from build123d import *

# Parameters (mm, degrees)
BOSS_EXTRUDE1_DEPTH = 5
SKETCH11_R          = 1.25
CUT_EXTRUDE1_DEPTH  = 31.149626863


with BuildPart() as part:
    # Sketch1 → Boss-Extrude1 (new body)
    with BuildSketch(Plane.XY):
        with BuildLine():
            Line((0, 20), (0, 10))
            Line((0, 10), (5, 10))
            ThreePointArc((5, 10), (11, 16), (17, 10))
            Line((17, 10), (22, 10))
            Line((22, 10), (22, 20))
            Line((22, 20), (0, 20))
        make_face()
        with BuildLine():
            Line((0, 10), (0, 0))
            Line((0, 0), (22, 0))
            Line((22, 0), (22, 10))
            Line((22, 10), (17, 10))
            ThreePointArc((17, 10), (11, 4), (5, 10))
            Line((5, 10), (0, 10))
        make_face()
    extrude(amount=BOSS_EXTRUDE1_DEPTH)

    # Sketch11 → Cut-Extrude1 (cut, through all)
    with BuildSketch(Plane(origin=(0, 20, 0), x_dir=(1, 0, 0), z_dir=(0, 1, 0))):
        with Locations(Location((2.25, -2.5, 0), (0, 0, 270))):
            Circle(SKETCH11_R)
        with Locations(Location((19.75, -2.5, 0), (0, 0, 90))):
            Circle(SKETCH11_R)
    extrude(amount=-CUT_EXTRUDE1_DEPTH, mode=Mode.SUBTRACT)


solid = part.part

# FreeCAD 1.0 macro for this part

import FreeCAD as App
import Part
import Sketcher
from FreeCAD import Vector
Q = App.Units.Quantity

doc = App.newDocument("Part")
params = doc.addObject("Spreadsheet::Sheet", "Params")
for row, (alias, value) in enumerate([
    ("sketch1_diameter", "12 mm"),
    ("sketch1_width", "22 mm"),
    ("sketch1_height", "20 mm"),
    ("pad1_length", "5 mm"),
    ("sketch2_diameter", "2.5 mm"),
], start=1):
    params.set(f"A{row}", alias)
    params.set(f"B{row}", "=" + value)
    params.setAlias(f"B{row}", alias)

body = doc.addObject("PartDesign::Body", "Body")

sketch1 = body.newObject("Sketcher::SketchObject", "Sketch")
sketch1.AttachmentSupport = (doc.getObject("XY_Plane"), [""])
sketch1.MapMode = "FlatFace"
sketch1.addGeometry([
    Part.LineSegment(Vector(0, 20, 0), Vector(0, 0, 0)),
    Part.LineSegment(Vector(0, 0, 0), Vector(22, 0, 0)),
    Part.LineSegment(Vector(22, 0, 0), Vector(22, 20, 0)),
    Part.LineSegment(Vector(22, 20, 0), Vector(0, 20, 0)),
    Part.Circle(Vector(11, 10, 0), Vector(0, 0, 1), 6),
], False)
sketch1.addConstraint([
    Sketcher.Constraint("Coincident", 0, 2, 1, 1),
    Sketcher.Constraint("Coincident", 1, 2, 2, 1),
    Sketcher.Constraint("Coincident", 2, 2, 3, 1),
    Sketcher.Constraint("Coincident", 3, 2, 0, 1),
    Sketcher.Constraint("Vertical", 0),
    Sketcher.Constraint("Horizontal", 1),
    Sketcher.Constraint("Vertical", 2),
    Sketcher.Constraint("Horizontal", 3),
    Sketcher.Constraint("Coincident", 0, 2, -1, 1),
    Sketcher.Constraint("Diameter", 4, Q("12 mm")),
    Sketcher.Constraint("DistanceX", 1, 1, 1, 2, Q("22 mm")),
    Sketcher.Constraint("DistanceY", 0, 2, 0, 1, Q("20 mm")),
    Sketcher.Constraint("DistanceX", -1, 1, 4, 3, Q("11 mm")),
    Sketcher.Constraint("DistanceY", -1, 1, 4, 3, Q("10 mm")),
])
sketch1.setExpression("Constraints[9]", "Params.sketch1_diameter")
sketch1.setExpression("Constraints[10]", "Params.sketch1_width")
sketch1.setExpression("Constraints[11]", "Params.sketch1_height")
pad1 = body.newObject("PartDesign::Pad", "Pad")
pad1.Profile = sketch1
pad1.setExpression("Length", "Params.pad1_length")

sketch2 = body.newObject("Sketcher::SketchObject", "Sketch001")
sketch2.AttachmentSupport = (doc.getObject("XZ_Plane"), [""])
sketch2.MapMode = "FlatFace"
sketch2.AttachmentOffset = App.Placement(Vector(0, 0, -20), App.Rotation())
sketch2.addGeometry([
    Part.Circle(Vector(2.2, 2.5, 0), Vector(0, 0, 1), 1.2),
    Part.Circle(Vector(19.8, 2.5, 0), Vector(0, 0, 1), 1.2),
], False)
sketch2.addConstraint([
    Sketcher.Constraint("Equal", 0, 1),
    Sketcher.Constraint("Horizontal", 0, 3, 1, 3),
    Sketcher.Constraint("Diameter", 0, Q("2.5 mm")),
    Sketcher.Constraint("DistanceY", -1, 1, 0, 3, Q("2.5 mm")),
    Sketcher.Constraint("DistanceX", 0, 3, 1, 3, Q("17.5 mm")),
    Sketcher.Constraint("DistanceX", -1, 1, 0, 3, Q("2.25 mm")),
])
sketch2.setExpression("Constraints[2]", "Params.sketch2_diameter")
pocket1 = body.newObject("PartDesign::Pocket", "Pocket")
pocket1.Profile = sketch2
pocket1.Type = "ThroughAll"
pocket1.Reversed = True

doc.recompute()
